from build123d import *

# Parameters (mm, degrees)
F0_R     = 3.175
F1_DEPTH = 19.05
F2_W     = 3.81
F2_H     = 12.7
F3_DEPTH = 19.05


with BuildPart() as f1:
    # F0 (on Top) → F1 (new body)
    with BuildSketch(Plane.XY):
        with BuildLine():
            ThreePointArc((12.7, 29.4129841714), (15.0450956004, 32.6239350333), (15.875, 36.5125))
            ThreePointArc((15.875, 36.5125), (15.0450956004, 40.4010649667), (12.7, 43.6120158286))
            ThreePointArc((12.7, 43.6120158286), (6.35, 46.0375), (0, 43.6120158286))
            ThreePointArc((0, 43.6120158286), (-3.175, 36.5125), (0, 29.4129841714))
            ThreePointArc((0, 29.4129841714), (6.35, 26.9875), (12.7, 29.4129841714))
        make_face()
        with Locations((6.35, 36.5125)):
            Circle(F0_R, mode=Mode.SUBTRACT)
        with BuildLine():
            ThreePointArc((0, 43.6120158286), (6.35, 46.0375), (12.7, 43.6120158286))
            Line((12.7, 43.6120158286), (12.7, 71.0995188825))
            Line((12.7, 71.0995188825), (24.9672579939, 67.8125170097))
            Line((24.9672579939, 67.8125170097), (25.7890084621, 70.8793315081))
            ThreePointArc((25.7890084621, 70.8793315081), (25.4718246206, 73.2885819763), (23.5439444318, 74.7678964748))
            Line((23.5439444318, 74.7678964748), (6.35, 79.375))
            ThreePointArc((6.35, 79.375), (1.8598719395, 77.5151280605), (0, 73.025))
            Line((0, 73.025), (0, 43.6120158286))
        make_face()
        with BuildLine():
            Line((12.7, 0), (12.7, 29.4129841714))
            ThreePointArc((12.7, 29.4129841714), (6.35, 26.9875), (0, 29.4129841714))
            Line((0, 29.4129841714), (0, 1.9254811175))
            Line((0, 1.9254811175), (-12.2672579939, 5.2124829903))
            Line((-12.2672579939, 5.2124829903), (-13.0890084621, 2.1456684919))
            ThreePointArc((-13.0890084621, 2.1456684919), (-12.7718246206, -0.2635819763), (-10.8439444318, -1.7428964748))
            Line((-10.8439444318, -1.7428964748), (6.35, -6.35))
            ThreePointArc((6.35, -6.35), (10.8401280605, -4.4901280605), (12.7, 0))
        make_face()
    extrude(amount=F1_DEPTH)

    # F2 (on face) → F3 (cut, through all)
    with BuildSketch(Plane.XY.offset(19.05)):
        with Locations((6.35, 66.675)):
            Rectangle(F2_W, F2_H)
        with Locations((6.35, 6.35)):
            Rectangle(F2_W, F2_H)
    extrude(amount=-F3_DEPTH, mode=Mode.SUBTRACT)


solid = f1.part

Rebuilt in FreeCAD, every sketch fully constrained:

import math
import FreeCAD as App
import Part
import Sketcher
Q = App.Units.Quantity

doc = App.newDocument("Part")
body = doc.addObject("PartDesign::Body", "Body")

# Sketch on XY plane
sketch1 = body.newObject("Sketcher::SketchObject", "Sketch")
sketch1.AttachmentSupport = (doc.getObject("XY_Plane"), [""])
sketch1.MapMode = "FlatFace"
sketch1.addGeometry([
    Part.ArcOfCircle(Part.Circle(App.Vector(6.3, 36.5, 0), App.Vector(0, 0, 1), 9.5), math.radians(-48), math.radians(0)),  # 0
    Part.ArcOfCircle(Part.Circle(App.Vector(6.3, 36.5, 0), App.Vector(0, 0, 1), 9.5), math.radians(0), math.radians(48)),  # 1
    Part.LineSegment(App.Vector(12.7, 43.6, 0), App.Vector(12.7, 71.1, 0)),  # 2
    Part.LineSegment(App.Vector(12.7, 71.1, 0), App.Vector(25, 67.8, 0)),  # 3
    Part.LineSegment(App.Vector(25, 67.8, 0), App.Vector(25.8, 70.9, 0)),  # 4
    Part.ArcOfCircle(Part.Circle(App.Vector(22.7, 71.7, 0), App.Vector(0, 0, 1), 3.2), math.radians(-15), math.radians(75)),  # 5
    Part.LineSegment(App.Vector(23.5, 74.8, 0), App.Vector(6.3, 79.4, 0)),  # 6
    Part.ArcOfCircle(Part.Circle(App.Vector(6.3, 73, 0), App.Vector(0, 0, 1), 6.3), math.radians(90), math.radians(180)),  # 7
    Part.LineSegment(App.Vector(0, 73, 0), App.Vector(0, 43.6, 0)),  # 8
    Part.ArcOfCircle(Part.Circle(App.Vector(6.3, 36.5, 0), App.Vector(0, 0, 1), 9.5), math.radians(132), math.radians(228)),  # 9
    Part.LineSegment(App.Vector(0, 29.4, 0), App.Vector(0, 1.9, 0)),  # 10
    Part.LineSegment(App.Vector(0, 1.9, 0), App.Vector(-12.3, 5.2, 0)),  # 11
    Part.LineSegment(App.Vector(-12.3, 5.2, 0), App.Vector(-13.1, 2.1, 0)),  # 12
    Part.ArcOfCircle(Part.Circle(App.Vector(-10, 1.3, 0), App.Vector(0, 0, 1), 3.2), math.radians(165), math.radians(255)),  # 13
    Part.LineSegment(App.Vector(-10.8, -1.7, 0), App.Vector(6.3, -6.3, 0)),  # 14
    Part.ArcOfCircle(Part.Circle(App.Vector(6.3, 0, 0), App.Vector(0, 0, 1), 6.3), math.radians(-90), math.radians(0)),  # 15
    Part.LineSegment(App.Vector(12.7, 0, 0), App.Vector(12.7, 29.4, 0)),  # 16
    Part.Circle(App.Vector(6.3, 36.5, 0), App.Vector(0, 0, 1), 3.2),  # 17
], False)
sketch1.addConstraint([
    Sketcher.Constraint("Tangent", 0, 2, 1, 1),
    Sketcher.Constraint("Coincident", 1, 2, 2, 1),
    Sketcher.Constraint("Coincident", 2, 2, 3, 1),
    Sketcher.Constraint("Coincident", 3, 2, 4, 1),
    Sketcher.Constraint("Tangent", 4, 2, 5, 1),
    Sketcher.Constraint("Tangent", 5, 2, 6, 1),
    Sketcher.Constraint("Coincident", 6, 2, 7, 1),
    Sketcher.Constraint("Tangent", 7, 2, 8, 1),
    Sketcher.Constraint("Coincident", 8, 2, 9, 1),
    Sketcher.Constraint("Coincident", 9, 2, 10, 1),
    Sketcher.Constraint("Coincident", 10, 2, 11, 1),
    Sketcher.Constraint("Coincident", 11, 2, 12, 1),
    Sketcher.Constraint("Tangent", 12, 2, 13, 1),
    Sketcher.Constraint("Tangent", 13, 2, 14, 1),
    Sketcher.Constraint("Coincident", 14, 2, 15, 1),
    Sketcher.Constraint("Tangent", 15, 2, 16, 1),
    Sketcher.Constraint("Coincident", 16, 2, 0, 1),
    Sketcher.Constraint("Vertical", 2),
    Sketcher.Constraint("Vertical", 8),
    Sketcher.Constraint("Vertical", 10),
    Sketcher.Constraint("Vertical", 16),
    Sketcher.Constraint("Coincident", 9, 3, 0, 3),
    Sketcher.Constraint("Coincident", 17, 3, 0, 3),
    Sketcher.Constraint("Equal", 0, 1),
    Sketcher.Constraint("Equal", 1, 9),
    Sketcher.Constraint("Equal", 5, 13),
    Sketcher.Constraint("Equal", 7, 15),
    Sketcher.Constraint("Equal", 13, 17),
    Sketcher.Constraint("PointOnObject", 15, 3, -1),
    Sketcher.Constraint("PointOnObject", 7, 2, -2),
    Sketcher.Constraint("PointOnObject", 9, 2, -2),
    Sketcher.Constraint("Perpendicular", 3, 4),
    Sketcher.Constraint("Perpendicular", 4, 6),
    Sketcher.Constraint("Parallel", 6, 11),
    Sketcher.Constraint("Perpendicular", 11, 12),
    Sketcher.Constraint("Perpendicular", 12, 14),
    Sketcher.Constraint("Horizontal", 17, 3, 0, 2),
    Sketcher.Constraint("Horizontal", 1, 2, 8, 2),
    Sketcher.Constraint("Horizontal", 9, 2, 16, 2),
    Sketcher.Constraint("Vertical", 1, 3, 7, 3),
    Sketcher.Constraint("Vertical", 17, 3, 6, 2),
    Sketcher.Constraint("Vertical", 6, 2, 14, 2),
    Sketcher.Constraint("Equal", 2, 10),
    Sketcher.Constraint("Equal", 8, 16),
    Sketcher.Constraint("Equal", 3, 11),
    Sketcher.Constraint("Diameter", 17, Q("0.25 in")),
    Sketcher.Constraint("Radius", 7, Q("0.25 in")),
    Sketcher.Constraint("Angle", 3, Q("-15 deg")),
    Sketcher.Constraint("Radius", 0, Q("0.375 in")),
    Sketcher.Constraint("Distance", 3, Q("0.5 in")),
    Sketcher.Constraint("Distance", 4, Q("0.125 in")),
    Sketcher.Constraint("DistanceY", -1, 1, 0, 3, Q("1.4375 in")),
])
pad1 = body.newObject("PartDesign::Pad", "Pad")
pad1.Profile = sketch1
pad1.Length = Q("0.75 in")

# Sketch on XY plane
sketch2 = body.newObject("Sketcher::SketchObject", "Sketch001")
sketch2.AttachmentSupport = (doc.getObject("XY_Plane"), [""])
sketch2.MapMode = "FlatFace"
sketch2.AttachmentOffset = App.Placement(App.Vector(0, 0, 0.75 * 25.4), App.Rotation())
sketch2.addGeometry([
    Part.LineSegment(App.Vector(4.4, 73, 0), App.Vector(4.4, 60.3, 0)),  # 0
    Part.LineSegment(App.Vector(4.4, 60.3, 0), App.Vector(8.3, 60.3, 0)),  # 1
    Part.LineSegment(App.Vector(8.3, 60.3, 0), App.Vector(8.3, 73, 0)),  # 2
    Part.LineSegment(App.Vector(8.3, 73, 0), App.Vector(4.4, 73, 0)),  # 3
    Part.LineSegment(App.Vector(4.4, 12.7, 0), App.Vector(4.4, 0, 0)),  # 4
    Part.LineSegment(App.Vector(4.4, 0, 0), App.Vector(8.3, 0, 0)),  # 5
    Part.LineSegment(App.Vector(8.3, 0, 0), App.Vector(8.3, 12.7, 0)),  # 6
    Part.LineSegment(App.Vector(8.3, 12.7, 0), App.Vector(4.4, 12.7, 0)),  # 7
], False)
sketch2.addConstraint([
    Sketcher.Constraint("Coincident", 0, 2, 1, 1),
    Sketcher.Constraint("Coincident", 1, 2, 2, 1),
    Sketcher.Constraint("Coincident", 2, 2, 3, 1),
    Sketcher.Constraint("Coincident", 3, 2, 0, 1),
    Sketcher.Constraint("Coincident", 4, 2, 5, 1),
    Sketcher.Constraint("Coincident", 5, 2, 6, 1),
    Sketcher.Constraint("Coincident", 6, 2, 7, 1),
    Sketcher.Constraint("Coincident", 7, 2, 4, 1),
    Sketcher.Constraint("Vertical", 0),
    Sketcher.Constraint("Horizontal", 1),
    Sketcher.Constraint("Vertical", 2),
    Sketcher.Constraint("Horizontal", 3),
    Sketcher.Constraint("Vertical", 4),
    Sketcher.Constraint("Horizontal", 5),
    Sketcher.Constraint("Vertical", 6),
    Sketcher.Constraint("Horizontal", 7),
    Sketcher.Constraint("PointOnObject", 4, 2, -1),
    Sketcher.Constraint("Vertical", 3, 2, 4, 2),
    Sketcher.Constraint("Vertical", 2, 2, 5, 2),
    Sketcher.Constraint("Equal", 2, 4),
    Sketcher.Constraint("DistanceY", 0, 2, 0, 1, Q("0.5 in")),
    Sketcher.Constraint("DistanceX", 1, 1, 1, 2, Q("0.15 in")),
    Sketcher.Constraint("DistanceX", -1, 1, 0, 2, Q("0.175 in")),
    Sketcher.Constraint("DistanceY", -1, 1, 0, 2, Q("2.375 in")),
])
pocket1 = body.newObject("PartDesign::Pocket", "Pocket")
pocket1.Profile = sketch2
pocket1.Type = "ThroughAll"

doc.recompute()
